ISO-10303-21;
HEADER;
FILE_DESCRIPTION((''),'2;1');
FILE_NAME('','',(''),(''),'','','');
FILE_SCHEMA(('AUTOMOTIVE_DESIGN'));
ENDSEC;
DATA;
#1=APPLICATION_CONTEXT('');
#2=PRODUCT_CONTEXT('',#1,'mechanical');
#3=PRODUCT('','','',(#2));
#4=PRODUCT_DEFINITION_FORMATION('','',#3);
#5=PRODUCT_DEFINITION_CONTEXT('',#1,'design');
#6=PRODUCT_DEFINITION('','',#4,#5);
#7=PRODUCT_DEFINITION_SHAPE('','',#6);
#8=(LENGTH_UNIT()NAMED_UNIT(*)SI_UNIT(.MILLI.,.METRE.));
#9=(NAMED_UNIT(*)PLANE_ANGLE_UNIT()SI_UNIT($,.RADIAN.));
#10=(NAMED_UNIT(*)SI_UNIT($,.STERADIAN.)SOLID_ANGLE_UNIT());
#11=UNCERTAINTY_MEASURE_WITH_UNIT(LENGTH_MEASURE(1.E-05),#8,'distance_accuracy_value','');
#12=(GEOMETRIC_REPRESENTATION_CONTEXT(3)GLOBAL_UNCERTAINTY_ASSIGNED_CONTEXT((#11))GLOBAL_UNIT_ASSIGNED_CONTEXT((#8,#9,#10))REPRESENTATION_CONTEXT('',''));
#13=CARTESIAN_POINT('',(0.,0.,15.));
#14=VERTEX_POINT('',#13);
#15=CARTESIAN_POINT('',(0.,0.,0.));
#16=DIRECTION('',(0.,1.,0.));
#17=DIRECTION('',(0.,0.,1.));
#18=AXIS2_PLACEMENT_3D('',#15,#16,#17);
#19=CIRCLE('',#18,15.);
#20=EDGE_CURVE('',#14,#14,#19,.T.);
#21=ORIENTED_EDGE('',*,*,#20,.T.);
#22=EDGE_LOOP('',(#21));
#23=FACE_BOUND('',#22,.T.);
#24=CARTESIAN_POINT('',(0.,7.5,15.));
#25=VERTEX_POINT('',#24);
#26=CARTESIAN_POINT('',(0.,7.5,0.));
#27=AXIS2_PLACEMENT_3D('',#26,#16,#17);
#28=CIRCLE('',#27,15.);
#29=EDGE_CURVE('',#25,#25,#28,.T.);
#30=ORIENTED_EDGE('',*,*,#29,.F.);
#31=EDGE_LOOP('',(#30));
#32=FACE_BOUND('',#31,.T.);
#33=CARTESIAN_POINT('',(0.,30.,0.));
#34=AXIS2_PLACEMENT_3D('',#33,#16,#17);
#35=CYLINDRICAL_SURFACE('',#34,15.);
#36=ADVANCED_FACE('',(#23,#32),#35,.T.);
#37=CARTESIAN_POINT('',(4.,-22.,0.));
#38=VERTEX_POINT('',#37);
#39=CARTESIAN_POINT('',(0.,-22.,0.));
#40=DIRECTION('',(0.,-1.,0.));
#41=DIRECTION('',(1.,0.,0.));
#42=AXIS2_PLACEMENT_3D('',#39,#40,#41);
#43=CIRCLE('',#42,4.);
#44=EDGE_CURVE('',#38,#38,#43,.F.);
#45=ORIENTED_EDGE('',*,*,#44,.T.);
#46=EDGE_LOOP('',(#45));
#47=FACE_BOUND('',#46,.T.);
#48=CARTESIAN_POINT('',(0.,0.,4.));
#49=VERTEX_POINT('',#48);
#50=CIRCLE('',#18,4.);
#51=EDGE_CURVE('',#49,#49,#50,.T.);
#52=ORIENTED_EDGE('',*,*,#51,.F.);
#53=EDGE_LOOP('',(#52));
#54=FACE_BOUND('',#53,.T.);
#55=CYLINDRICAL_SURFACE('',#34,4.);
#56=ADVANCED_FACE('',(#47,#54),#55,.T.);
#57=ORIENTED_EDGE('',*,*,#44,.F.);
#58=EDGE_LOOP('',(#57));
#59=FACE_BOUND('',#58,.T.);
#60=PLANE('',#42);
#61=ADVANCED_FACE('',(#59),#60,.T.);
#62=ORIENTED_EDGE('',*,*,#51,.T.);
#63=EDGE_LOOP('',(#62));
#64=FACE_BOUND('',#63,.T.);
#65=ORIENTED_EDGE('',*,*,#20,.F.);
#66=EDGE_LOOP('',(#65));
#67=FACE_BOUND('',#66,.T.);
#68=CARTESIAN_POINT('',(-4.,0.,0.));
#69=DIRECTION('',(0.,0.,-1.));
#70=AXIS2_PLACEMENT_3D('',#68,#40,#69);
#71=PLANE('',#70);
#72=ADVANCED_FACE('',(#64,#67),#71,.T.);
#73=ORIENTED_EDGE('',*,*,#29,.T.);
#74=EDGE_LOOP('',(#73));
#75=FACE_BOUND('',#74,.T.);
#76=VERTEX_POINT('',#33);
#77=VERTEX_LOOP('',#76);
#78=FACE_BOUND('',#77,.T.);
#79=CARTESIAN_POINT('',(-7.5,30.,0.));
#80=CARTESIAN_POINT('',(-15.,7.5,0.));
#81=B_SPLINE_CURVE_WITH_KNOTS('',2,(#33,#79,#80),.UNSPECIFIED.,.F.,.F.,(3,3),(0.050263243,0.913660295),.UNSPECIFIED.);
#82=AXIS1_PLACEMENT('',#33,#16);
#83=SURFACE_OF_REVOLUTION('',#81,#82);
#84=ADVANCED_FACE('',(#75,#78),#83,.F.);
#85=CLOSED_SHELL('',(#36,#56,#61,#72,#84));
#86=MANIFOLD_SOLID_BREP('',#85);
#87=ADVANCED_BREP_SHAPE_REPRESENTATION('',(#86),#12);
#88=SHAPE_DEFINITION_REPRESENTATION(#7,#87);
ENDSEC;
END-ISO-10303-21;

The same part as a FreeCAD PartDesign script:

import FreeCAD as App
import Part
import Sketcher

doc = App.newDocument("Part")
params = doc.addObject("Spreadsheet::Sheet", "Params")
for row, (alias, value) in enumerate([
    ("sketch1_width", "11 mm"),
    ("sketch1_height", "55 mm"),
    ("revolution_angle", "360 deg"),
    ("pocket1_length", "3 mm"),
], start=1):
    params.set(f"A{row}", alias)
    params.set(f"B{row}", "=" + value)
    params.setAlias(f"B{row}", alias)

body = doc.addObject("PartDesign::Body", "Body")

# Sketch on XY plane
sketch1 = doc.addObject("Sketcher::SketchObject", "Sketch")
body.addObject(sketch1)
sketch1.AttachmentSupport = (doc.XY_Plane, [""])
sketch1.MapMode = "FlatFace"
sketch1.addGeometry(Part.LineSegment(App.Vector(0, -25, 0), App.Vector(0, 30, 0)), False)
sketch1.addGeometry(Part.BSplineCurve([App.Vector(-15, 7.5, 0), App.Vector(-7.5, 30, 0), App.Vector(0, 30, 0)], [3, 3], [0.050263243, 0.913660295], False, 2, [1, 1, 1], False), False)
sketch1.addGeometry(Part.LineSegment(App.Vector(-15, 7.5, 0), App.Vector(-15, 0, 0)), False)
sketch1.addGeometry(Part.LineSegment(App.Vector(-15, 0, 0), App.Vector(-4, 0, 0)), False)
sketch1.addGeometry(Part.LineSegment(App.Vector(-4, 0, 0), App.Vector(-4, -25, 0)), False)
sketch1.addGeometry(Part.LineSegment(App.Vector(-4, -25, 0), App.Vector(0, -25, 0)), False)
sketch1.addConstraint(Sketcher.Constraint("Block", 1))
sketch1.addConstraint(Sketcher.Constraint("Coincident", 0, 2, 1, 2))
sketch1.addConstraint(Sketcher.Constraint("Coincident", 1, 1, 2, 1))
sketch1.addConstraint(Sketcher.Constraint("Coincident", 2, 2, 3, 1))
sketch1.addConstraint(Sketcher.Constraint("Coincident", 3, 2, 4, 1))
sketch1.addConstraint(Sketcher.Constraint("Coincident", 4, 2, 5, 1))
sketch1.addConstraint(Sketcher.Constraint("Coincident", 5, 2, 0, 1))
sketch1.addConstraint(Sketcher.Constraint("Vertical", 0))
sketch1.addConstraint(Sketcher.Constraint("Vertical", 2))
sketch1.addConstraint(Sketcher.Constraint("Horizontal", 3))
sketch1.addConstraint(Sketcher.Constraint("Vertical", 4))
sketch1.addConstraint(Sketcher.Constraint("Horizontal", 5))
sketch1.addConstraint(Sketcher.Constraint("PointOnObject", 2, 2, -1))
sketch1.addConstraint(Sketcher.Constraint("DistanceX", 3, 1, 3, 2, 11.0))
sketch1.addConstraint(Sketcher.Constraint("DistanceY", 0, 1, 0, 2, 55.0))
sketch1.setExpression("Constraints[13]", "Params.sketch1_width")
sketch1.setExpression("Constraints[14]", "Params.sketch1_height")
revolution = doc.addObject("PartDesign::Revolution", "Revolution")
body.addObject(revolution)
revolution.Profile = sketch1
revolution.ReferenceAxis = (sketch1, ["V_Axis"])
revolution.setExpression("Angle", "Params.revolution_angle")

# Sketch on XZ plane
sketch2 = doc.addObject("Sketcher::SketchObject", "Sketch001")
body.addObject(sketch2)
sketch2.AttachmentSupport = (doc.XZ_Plane, [""])
sketch2.MapMode = "FlatFace"
sketch2.AttachmentOffset = App.Placement(App.Vector(0, 0, 25), App.Rotation())
sketch2.addGeometry(Part.Circle(App.Vector(0, 0, 0), App.Vector(0, 0, 1), 9), False)
sketch2.addConstraint(Sketcher.Constraint("Coincident", 0, 3, -1, 1))
sketch2.addConstraint(Sketcher.Constraint("Diameter", 0, 17.907148))
pocket1 = doc.addObject("PartDesign::Pocket", "Pocket")
body.addObject(pocket1)
pocket1.Profile = sketch2
pocket1.setExpression("Length", "Params.pocket1_length")

doc.recompute()
